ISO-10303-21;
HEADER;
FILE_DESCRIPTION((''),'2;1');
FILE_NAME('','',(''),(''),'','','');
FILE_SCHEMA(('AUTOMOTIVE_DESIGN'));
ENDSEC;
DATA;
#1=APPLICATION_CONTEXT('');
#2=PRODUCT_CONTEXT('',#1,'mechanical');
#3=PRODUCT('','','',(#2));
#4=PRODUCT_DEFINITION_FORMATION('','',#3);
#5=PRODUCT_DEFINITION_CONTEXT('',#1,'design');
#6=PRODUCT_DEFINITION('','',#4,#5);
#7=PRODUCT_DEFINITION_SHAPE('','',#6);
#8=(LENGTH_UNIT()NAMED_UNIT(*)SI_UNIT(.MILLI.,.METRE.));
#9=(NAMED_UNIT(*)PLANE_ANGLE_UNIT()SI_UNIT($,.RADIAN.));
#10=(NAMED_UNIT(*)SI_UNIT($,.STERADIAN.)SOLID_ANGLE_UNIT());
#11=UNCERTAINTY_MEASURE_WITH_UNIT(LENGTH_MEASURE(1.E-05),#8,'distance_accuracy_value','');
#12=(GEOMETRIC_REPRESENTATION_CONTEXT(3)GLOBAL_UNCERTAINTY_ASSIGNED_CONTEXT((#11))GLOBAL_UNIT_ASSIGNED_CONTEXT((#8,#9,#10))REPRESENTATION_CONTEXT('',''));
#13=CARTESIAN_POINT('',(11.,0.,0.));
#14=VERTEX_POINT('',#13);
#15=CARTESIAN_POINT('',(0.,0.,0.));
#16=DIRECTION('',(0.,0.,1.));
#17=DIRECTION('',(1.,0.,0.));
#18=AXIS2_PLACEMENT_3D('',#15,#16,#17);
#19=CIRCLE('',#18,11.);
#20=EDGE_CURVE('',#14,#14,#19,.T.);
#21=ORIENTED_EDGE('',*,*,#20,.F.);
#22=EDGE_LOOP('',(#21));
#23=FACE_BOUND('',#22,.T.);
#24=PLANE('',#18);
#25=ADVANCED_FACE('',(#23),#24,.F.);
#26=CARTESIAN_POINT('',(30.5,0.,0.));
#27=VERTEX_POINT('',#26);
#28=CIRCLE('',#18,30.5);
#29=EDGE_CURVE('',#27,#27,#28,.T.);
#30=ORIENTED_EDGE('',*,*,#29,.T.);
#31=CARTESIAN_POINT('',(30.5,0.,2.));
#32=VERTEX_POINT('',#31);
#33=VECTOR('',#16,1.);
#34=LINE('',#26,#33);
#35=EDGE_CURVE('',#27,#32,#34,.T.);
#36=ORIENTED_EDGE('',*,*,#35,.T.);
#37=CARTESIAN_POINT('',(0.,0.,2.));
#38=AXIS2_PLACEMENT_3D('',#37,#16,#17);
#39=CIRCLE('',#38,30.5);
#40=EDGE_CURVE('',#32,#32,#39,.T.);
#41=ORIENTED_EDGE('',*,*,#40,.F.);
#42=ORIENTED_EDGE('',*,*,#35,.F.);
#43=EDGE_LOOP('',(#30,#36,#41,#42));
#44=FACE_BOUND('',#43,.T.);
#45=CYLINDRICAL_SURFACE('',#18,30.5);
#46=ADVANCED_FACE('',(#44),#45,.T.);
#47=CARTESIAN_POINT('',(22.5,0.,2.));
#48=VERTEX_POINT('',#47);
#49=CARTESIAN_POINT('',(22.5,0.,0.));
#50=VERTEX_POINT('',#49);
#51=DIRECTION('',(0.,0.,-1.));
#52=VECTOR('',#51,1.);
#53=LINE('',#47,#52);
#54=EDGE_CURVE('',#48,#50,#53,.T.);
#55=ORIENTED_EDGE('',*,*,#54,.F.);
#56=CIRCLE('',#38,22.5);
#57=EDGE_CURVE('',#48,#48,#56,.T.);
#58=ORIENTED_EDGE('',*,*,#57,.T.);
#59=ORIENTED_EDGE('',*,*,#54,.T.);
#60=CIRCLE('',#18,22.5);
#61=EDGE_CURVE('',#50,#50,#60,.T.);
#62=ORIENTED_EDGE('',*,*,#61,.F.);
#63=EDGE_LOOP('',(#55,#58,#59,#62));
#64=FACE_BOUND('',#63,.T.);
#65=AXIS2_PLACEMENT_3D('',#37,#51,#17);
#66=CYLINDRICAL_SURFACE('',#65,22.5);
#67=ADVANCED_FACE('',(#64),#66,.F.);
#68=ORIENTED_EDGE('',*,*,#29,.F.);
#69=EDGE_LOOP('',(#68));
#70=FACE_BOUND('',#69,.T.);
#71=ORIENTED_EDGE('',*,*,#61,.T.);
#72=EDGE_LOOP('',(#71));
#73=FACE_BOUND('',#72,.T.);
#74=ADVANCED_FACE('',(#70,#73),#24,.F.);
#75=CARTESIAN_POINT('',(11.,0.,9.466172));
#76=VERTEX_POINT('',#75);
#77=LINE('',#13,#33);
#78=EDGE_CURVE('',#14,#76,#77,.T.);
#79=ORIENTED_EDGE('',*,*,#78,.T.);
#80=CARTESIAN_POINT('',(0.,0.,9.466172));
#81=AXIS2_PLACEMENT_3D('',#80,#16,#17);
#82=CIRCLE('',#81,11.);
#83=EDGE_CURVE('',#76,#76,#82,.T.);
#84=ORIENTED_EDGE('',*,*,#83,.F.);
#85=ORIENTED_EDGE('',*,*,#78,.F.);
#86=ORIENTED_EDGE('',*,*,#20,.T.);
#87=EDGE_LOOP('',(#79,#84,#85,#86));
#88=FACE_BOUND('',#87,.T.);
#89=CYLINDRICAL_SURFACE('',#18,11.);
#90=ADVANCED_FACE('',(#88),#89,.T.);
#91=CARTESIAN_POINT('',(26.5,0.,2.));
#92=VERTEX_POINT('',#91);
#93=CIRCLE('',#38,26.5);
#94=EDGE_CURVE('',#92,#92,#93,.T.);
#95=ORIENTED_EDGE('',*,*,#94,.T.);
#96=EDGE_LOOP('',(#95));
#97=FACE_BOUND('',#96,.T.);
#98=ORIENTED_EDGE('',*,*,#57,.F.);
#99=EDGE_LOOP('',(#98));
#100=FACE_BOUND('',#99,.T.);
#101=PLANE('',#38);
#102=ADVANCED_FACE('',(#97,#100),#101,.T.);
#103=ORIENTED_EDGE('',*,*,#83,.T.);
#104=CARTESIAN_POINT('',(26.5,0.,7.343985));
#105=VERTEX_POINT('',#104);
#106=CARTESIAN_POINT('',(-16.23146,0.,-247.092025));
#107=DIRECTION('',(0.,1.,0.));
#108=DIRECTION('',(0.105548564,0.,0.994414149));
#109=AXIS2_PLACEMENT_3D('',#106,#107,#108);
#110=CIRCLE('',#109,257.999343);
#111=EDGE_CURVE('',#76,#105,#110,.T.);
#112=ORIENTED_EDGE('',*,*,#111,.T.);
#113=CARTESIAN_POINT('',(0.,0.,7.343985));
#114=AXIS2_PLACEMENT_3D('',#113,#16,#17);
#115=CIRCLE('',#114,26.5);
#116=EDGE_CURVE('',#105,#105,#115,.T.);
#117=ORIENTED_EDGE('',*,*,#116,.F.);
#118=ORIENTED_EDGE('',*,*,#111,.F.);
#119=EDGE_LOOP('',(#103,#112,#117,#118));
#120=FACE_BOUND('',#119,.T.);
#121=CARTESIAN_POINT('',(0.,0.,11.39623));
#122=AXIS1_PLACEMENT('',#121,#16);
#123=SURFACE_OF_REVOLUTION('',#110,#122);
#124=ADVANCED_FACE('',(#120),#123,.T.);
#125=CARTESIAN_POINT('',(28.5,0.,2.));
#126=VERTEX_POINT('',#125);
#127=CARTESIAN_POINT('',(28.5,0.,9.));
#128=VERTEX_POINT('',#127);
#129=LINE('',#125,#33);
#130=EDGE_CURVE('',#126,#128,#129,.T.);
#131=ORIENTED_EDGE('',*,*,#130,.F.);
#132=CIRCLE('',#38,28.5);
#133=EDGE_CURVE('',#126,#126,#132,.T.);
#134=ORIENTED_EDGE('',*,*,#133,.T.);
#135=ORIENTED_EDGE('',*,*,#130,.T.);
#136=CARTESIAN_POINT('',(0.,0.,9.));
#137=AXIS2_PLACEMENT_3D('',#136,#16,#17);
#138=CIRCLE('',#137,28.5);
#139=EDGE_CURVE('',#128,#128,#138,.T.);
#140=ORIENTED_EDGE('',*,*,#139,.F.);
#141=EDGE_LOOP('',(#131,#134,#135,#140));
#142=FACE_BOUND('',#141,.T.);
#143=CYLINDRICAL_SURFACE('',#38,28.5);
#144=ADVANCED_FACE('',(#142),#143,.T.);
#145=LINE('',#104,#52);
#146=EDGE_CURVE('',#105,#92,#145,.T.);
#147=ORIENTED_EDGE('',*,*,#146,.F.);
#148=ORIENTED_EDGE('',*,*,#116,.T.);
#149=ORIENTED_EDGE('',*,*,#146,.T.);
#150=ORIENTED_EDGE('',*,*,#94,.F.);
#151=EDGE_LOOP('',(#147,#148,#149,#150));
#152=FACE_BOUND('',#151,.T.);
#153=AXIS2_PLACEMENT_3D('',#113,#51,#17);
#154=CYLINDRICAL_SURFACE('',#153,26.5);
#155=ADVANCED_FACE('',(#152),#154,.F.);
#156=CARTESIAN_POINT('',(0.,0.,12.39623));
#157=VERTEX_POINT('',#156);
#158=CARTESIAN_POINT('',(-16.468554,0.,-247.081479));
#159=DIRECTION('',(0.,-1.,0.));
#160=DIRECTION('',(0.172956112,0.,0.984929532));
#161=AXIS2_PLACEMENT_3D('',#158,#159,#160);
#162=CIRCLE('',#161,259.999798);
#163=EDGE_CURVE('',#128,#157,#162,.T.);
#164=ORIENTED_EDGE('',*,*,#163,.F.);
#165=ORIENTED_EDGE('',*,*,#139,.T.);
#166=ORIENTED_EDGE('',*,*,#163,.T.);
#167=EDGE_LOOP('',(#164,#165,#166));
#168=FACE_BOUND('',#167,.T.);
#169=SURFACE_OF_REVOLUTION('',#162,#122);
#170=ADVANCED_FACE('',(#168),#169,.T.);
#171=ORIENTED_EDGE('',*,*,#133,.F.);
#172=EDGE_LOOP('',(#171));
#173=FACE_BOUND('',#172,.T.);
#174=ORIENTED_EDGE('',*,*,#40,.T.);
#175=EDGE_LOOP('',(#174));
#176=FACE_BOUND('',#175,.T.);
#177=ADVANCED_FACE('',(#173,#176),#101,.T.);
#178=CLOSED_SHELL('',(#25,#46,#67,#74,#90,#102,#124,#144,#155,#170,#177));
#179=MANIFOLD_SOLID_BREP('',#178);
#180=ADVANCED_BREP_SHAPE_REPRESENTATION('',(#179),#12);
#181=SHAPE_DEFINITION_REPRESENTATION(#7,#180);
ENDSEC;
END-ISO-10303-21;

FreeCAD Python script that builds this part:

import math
import FreeCAD as App
import Part
import Sketcher

doc = App.newDocument("Part")
params = doc.addObject("Spreadsheet::Sheet", "Params")
for row, (alias, value) in enumerate([
    ("sketch1_width", "11 mm"),
    ("sketch1_width2", "4 mm"),
    ("sketch1_width3", "8 mm"),
    ("sketch1_width4", "2 mm"),
    ("sketch1_height", "7 mm"),
    ("revolution_angle", "360 deg"),
], start=1):
    params.set(f"A{row}", alias)
    params.set(f"B{row}", "=" + value)
    params.setAlias(f"B{row}", alias)

body = doc.addObject("PartDesign::Body", "Body")

sketch1 = body.newObject("Sketcher::SketchObject", "Sketch")
sketch1.AttachmentSupport = (doc.getObject("XZ_Plane"), [""])
sketch1.MapMode = "FlatFace"
sketch1.addGeometry(Part.LineSegment(App.Vector(0, 0, 0), App.Vector(11, 0, 0)), False)
sketch1.addGeometry(Part.LineSegment(App.Vector(11, 0, 0), App.Vector(11, 9.466172, 0)), False)
sketch1.addGeometry(Part.ArcOfCircle(Part.Circle(App.Vector(-16.23146, -247.092025, 0), App.Vector(0, 0, 1), 257.999343), math.radians(80.466384), math.radians(83.941227)), False)
sketch1.addGeometry(Part.LineSegment(App.Vector(26.5, 7.343985, 0), App.Vector(26.5, 2, 0)), False)
sketch1.addGeometry(Part.LineSegment(App.Vector(26.5, 2, 0), App.Vector(22.5, 2, 0)), False)
sketch1.addGeometry(Part.LineSegment(App.Vector(22.5, 2, 0), App.Vector(22.5, 0, 0)), False)
sketch1.addGeometry(Part.LineSegment(App.Vector(22.5, 0, 0), App.Vector(30.5, 0, 0)), False)
sketch1.addGeometry(Part.LineSegment(App.Vector(30.5, 0, 0), App.Vector(30.5, 2, 0)), False)
sketch1.addGeometry(Part.LineSegment(App.Vector(30.5, 2, 0), App.Vector(28.5, 2, 0)), False)
sketch1.addGeometry(Part.LineSegment(App.Vector(28.5, 2, 0), App.Vector(28.5, 9, 0)), False)
sketch1.addGeometry(Part.ArcOfCircle(Part.Circle(App.Vector(-16.468554, -247.081479, 0), App.Vector(0, 0, 1), 259.999798), math.radians(80.040262), math.radians(86.368417)), False)
sketch1.addGeometry(Part.LineSegment(App.Vector(0, 12.39623, 0), App.Vector(0, 0, 0)), False)
sketch1.addConstraint(Sketcher.Constraint("Coincident", 0, 2, 1, 1))
sketch1.addConstraint(Sketcher.Constraint("Coincident", 1, 2, 2, 2))
sketch1.addConstraint(Sketcher.Constraint("Coincident", 2, 1, 3, 1))
sketch1.addConstraint(Sketcher.Constraint("Coincident", 3, 2, 4, 1))
sketch1.addConstraint(Sketcher.Constraint("Coincident", 4, 2, 5, 1))
sketch1.addConstraint(Sketcher.Constraint("Coincident", 5, 2, 6, 1))
sketch1.addConstraint(Sketcher.Constraint("Coincident", 6, 2, 7, 1))
sketch1.addConstraint(Sketcher.Constraint("Coincident", 7, 2, 8, 1))
sketch1.addConstraint(Sketcher.Constraint("Coincident", 8, 2, 9, 1))
sketch1.addConstraint(Sketcher.Constraint("Coincident", 9, 2, 10, 1))
sketch1.addConstraint(Sketcher.Constraint("Coincident", 10, 2, 11, 1))
sketch1.addConstraint(Sketcher.Constraint("Coincident", 11, 2, 0, 1))
sketch1.addConstraint(Sketcher.Constraint("Horizontal", 0))
sketch1.addConstraint(Sketcher.Constraint("Vertical", 1))
sketch1.addConstraint(Sketcher.Constraint("Vertical", 3))
sketch1.addConstraint(Sketcher.Constraint("Horizontal", 4))
sketch1.addConstraint(Sketcher.Constraint("Vertical", 5))
sketch1.addConstraint(Sketcher.Constraint("Horizontal", 6))
sketch1.addConstraint(Sketcher.Constraint("Vertical", 7))
sketch1.addConstraint(Sketcher.Constraint("Horizontal", 8))
sketch1.addConstraint(Sketcher.Constraint("Vertical", 9))
sketch1.addConstraint(Sketcher.Constraint("Vertical", 11))
sketch1.addConstraint(Sketcher.Constraint("Coincident", 11, 2, -1, 1))
sketch1.addConstraint(Sketcher.Constraint("PointOnObject", 5, 2, -1))
sketch1.addConstraint(Sketcher.Constraint("Horizontal", 4, 2, 7, 2))
sketch1.addConstraint(Sketcher.Constraint("Equal", 8, 5))
sketch1.addConstraint(Sketcher.Constraint("DistanceX", 0, 1, 0, 2, 11.0))
sketch1.addConstraint(Sketcher.Constraint("DistanceX", 4, 2, 4, 1, 4.0))
sketch1.addConstraint(Sketcher.Constraint("DistanceX", 6, 1, 6, 2, 8.0))
sketch1.addConstraint(Sketcher.Constraint("DistanceX", 8, 2, 8, 1, 2.0))
sketch1.addConstraint(Sketcher.Constraint("DistanceY", 9, 1, 9, 2, 7.0))
sketch1.addConstraint(Sketcher.Constraint("DistanceX", -1, 1, 3, 2, 26.5))
sketch1.addConstraint(Sketcher.Constraint("Radius", 2, 257.999343))
sketch1.addConstraint(Sketcher.Constraint("Radius", 10, 259.999798))
sketch1.addConstraint(Sketcher.Constraint("DistanceY", 11, 2, 11, 1, 12.39623))
sketch1.addConstraint(Sketcher.Constraint("DistanceY", 1, 1, 1, 2, 9.466172))
sketch1.addConstraint(Sketcher.Constraint("DistanceY", 3, 2, 3, 1, 5.343985))
sketch1.setExpression("Constraints[26]", "Params.sketch1_width")
sketch1.setExpression("Constraints[27]", "Params.sketch1_width2")
sketch1.setExpression("Constraints[28]", "Params.sketch1_width3")
sketch1.setExpression("Constraints[29]", "Params.sketch1_width4")
sketch1.setExpression("Constraints[30]", "Params.sketch1_height")
revolution = body.newObject("PartDesign::Revolution", "Revolution")
revolution.Profile = sketch1
revolution.ReferenceAxis = (sketch1, ["V_Axis"])
revolution.setExpression("Angle", "Params.revolution_angle")

doc.recompute()
